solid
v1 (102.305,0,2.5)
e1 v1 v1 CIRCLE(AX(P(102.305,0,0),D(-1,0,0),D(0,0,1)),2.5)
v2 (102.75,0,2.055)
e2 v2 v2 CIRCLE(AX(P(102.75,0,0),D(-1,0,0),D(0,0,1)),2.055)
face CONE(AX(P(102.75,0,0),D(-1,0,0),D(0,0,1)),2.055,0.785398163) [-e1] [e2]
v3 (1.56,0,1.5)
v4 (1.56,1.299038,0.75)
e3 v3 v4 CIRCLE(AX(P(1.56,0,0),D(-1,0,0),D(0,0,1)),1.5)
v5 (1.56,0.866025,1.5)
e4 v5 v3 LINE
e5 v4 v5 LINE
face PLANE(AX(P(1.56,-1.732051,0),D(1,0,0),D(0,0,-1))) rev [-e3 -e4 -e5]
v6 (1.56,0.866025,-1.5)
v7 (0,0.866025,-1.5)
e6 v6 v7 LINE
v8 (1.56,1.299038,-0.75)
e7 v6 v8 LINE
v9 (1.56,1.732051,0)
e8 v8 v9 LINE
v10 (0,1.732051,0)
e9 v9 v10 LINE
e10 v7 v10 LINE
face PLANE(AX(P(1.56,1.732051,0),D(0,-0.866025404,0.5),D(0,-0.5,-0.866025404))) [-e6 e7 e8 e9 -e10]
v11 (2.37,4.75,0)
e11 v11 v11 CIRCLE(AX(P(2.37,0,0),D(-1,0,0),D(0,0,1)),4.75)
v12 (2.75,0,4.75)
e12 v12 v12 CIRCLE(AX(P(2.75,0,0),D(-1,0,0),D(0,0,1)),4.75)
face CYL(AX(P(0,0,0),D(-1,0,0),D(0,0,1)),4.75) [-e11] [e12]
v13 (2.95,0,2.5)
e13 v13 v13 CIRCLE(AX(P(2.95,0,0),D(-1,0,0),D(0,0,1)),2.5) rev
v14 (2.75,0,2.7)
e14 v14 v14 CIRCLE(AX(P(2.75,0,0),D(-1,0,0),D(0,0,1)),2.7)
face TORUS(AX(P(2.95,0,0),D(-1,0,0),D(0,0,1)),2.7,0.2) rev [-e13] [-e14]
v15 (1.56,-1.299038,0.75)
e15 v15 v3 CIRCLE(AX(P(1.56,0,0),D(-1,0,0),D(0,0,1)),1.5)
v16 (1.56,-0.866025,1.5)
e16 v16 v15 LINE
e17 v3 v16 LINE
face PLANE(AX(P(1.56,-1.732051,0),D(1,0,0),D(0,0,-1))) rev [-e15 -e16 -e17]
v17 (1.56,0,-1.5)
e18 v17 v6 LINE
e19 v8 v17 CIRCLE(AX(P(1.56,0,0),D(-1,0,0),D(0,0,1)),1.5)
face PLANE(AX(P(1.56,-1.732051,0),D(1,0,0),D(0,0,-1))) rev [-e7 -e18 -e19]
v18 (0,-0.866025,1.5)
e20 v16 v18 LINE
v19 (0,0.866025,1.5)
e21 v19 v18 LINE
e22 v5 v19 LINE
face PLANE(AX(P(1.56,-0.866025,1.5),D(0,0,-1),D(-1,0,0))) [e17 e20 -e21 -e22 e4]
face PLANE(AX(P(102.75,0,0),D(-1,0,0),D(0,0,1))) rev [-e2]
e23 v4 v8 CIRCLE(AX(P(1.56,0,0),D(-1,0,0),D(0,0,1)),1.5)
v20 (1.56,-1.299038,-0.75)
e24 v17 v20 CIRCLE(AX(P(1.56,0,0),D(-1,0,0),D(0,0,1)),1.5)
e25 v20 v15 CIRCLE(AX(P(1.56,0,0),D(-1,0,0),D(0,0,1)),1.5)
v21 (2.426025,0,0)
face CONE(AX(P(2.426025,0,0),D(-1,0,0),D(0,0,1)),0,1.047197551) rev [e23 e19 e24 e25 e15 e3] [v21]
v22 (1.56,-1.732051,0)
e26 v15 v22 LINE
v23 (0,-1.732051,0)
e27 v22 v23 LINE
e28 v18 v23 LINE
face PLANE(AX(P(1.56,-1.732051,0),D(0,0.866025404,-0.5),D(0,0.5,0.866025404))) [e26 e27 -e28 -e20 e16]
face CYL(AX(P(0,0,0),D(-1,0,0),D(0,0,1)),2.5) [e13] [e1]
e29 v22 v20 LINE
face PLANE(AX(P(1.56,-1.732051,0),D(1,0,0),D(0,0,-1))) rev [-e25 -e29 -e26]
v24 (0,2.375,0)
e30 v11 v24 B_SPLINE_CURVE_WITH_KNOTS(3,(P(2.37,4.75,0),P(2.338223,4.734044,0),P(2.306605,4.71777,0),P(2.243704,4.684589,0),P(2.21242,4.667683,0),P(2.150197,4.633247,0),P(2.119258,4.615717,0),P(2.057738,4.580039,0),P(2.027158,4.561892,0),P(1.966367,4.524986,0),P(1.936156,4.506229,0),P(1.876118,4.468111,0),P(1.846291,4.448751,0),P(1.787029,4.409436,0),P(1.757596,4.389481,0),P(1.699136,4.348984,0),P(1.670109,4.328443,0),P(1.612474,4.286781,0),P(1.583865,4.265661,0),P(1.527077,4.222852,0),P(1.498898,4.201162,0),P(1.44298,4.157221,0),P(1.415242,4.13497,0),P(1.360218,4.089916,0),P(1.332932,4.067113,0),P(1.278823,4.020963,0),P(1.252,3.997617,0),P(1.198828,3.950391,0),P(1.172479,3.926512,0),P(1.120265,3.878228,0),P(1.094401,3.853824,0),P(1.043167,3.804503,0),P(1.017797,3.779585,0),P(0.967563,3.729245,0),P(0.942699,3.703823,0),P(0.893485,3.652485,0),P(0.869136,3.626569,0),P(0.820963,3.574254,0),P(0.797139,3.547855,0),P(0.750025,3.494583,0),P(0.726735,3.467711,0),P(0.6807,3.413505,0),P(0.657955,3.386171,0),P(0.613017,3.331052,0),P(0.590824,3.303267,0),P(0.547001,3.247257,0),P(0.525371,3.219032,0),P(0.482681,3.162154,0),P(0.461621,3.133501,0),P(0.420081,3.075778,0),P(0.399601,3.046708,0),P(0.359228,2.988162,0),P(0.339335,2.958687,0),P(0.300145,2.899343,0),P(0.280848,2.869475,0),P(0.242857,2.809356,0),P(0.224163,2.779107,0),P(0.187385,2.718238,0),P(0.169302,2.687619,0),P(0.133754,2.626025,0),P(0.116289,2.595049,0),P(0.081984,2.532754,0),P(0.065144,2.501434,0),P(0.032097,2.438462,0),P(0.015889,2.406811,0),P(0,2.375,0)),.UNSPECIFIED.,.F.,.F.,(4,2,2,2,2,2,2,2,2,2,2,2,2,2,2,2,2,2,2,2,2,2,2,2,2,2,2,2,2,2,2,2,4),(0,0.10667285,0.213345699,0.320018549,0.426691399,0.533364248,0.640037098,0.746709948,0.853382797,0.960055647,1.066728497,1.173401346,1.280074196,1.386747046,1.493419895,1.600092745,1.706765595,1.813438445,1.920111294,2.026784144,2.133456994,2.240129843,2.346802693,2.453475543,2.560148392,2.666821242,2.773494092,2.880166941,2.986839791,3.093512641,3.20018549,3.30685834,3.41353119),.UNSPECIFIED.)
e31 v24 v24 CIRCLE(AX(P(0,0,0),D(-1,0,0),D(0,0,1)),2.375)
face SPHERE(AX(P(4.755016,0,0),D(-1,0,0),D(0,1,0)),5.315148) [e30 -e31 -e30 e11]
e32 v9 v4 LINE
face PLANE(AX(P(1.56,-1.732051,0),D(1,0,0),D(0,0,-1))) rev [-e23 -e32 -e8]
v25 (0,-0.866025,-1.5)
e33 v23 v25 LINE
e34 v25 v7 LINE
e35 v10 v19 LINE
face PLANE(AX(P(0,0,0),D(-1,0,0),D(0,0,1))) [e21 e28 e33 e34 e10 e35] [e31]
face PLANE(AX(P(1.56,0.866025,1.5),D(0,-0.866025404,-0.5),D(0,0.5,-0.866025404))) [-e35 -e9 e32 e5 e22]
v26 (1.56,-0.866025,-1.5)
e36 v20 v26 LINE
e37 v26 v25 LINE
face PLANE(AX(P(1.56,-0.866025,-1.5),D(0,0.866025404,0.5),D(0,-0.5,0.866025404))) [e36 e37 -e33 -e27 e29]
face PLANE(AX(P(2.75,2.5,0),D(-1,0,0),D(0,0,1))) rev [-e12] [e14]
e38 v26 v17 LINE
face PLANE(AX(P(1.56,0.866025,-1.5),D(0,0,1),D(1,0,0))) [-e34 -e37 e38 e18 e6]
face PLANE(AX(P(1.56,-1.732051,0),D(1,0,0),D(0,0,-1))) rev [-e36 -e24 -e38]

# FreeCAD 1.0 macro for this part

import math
import FreeCAD as App
import Part
import Sketcher
from FreeCAD import Vector
Q = App.Units.Quantity


def edges_at(feature, points):
    """Names of the edges that pass closest to the given points."""
    edges = feature.Shape.Edges
    near = lambda p: min(range(len(edges)), key=lambda i: edges[i].distToShape(Part.Vertex(*p))[0])
    return sorted({f"Edge{near(p) + 1}" for p in points})

doc = App.newDocument("Part")
body = doc.addObject("PartDesign::Body", "Body")

# Sketch on XY plane
sketch1 = body.newObject("Sketcher::SketchObject", "Sketch")
sketch1.AttachmentSupport = (doc.getObject("XY_Plane"), [""])
sketch1.MapMode = "FlatFace"
sketch1.addGeometry(Part.LineSegment(Vector(102.75, 0, 0), Vector(102.75, 2.06, 0)), False)
sketch1.addGeometry(Part.LineSegment(Vector(102.75, 2.06, 0), Vector(102.31, 2.5, 0)), False)
sketch1.addGeometry(Part.LineSegment(Vector(102.31, 2.5, 0), Vector(2.75, 2.5, 0)), False)
sketch1.addGeometry(Part.LineSegment(Vector(2.75, 2.5, 0), Vector(2.75, 4.75, 0)), False)
sketch1.addGeometry(Part.LineSegment(Vector(2.75, 4.75, 0), Vector(2.37, 4.75, 0)), False)
sketch1.addGeometry(Part.ArcOfCircle(Part.Circle(Vector(4.76, 0, 0), Vector(0, 0, 1), 5.32), math.radians(117), math.radians(153)), False)
sketch1.addGeometry(Part.LineSegment(Vector(0, 2.38, 0), Vector(0, 0, 0)), False)
sketch1.addGeometry(Part.LineSegment(Vector(0, 0, 0), Vector(102.75, 0, 0)), False)
sketch1.addConstraint(Sketcher.Constraint("Coincident", 0, 2, 1, 1))
sketch1.addConstraint(Sketcher.Constraint("Coincident", 1, 2, 2, 1))
sketch1.addConstraint(Sketcher.Constraint("Coincident", 2, 2, 3, 1))
sketch1.addConstraint(Sketcher.Constraint("Coincident", 3, 2, 4, 1))
sketch1.addConstraint(Sketcher.Constraint("Coincident", 4, 2, 5, 1))
sketch1.addConstraint(Sketcher.Constraint("Coincident", 5, 2, 6, 1))
sketch1.addConstraint(Sketcher.Constraint("Coincident", 6, 2, 7, 1))
sketch1.addConstraint(Sketcher.Constraint("Coincident", 7, 2, 0, 1))
sketch1.addConstraint(Sketcher.Constraint("Vertical", 0))
sketch1.addConstraint(Sketcher.Constraint("Horizontal", 2))
sketch1.addConstraint(Sketcher.Constraint("Vertical", 3))
sketch1.addConstraint(Sketcher.Constraint("Horizontal", 4))
sketch1.addConstraint(Sketcher.Constraint("Vertical", 6))
sketch1.addConstraint(Sketcher.Constraint("Horizontal", 7))
sketch1.addConstraint(Sketcher.Constraint("Coincident", 6, 2, -1, 1))
sketch1.addConstraint(Sketcher.Constraint("PointOnObject", 5, 3, -1))
sketch1.addConstraint(Sketcher.Constraint("Angle", 1, Q("135 deg")))
sketch1.addConstraint(Sketcher.Constraint("DistanceX", 2, 2, 0, 2, 100.0))
sketch1.addConstraint(Sketcher.Constraint("DistanceX", 4, 2, 4, 1, 0.38))
sketch1.addConstraint(Sketcher.Constraint("DistanceX", 7, 1, 7, 2, 102.75))
sketch1.addConstraint(Sketcher.Constraint("DistanceY", 3, 1, 3, 2, 2.25))
sketch1.addConstraint(Sketcher.Constraint("DistanceY", -1, 1, 1, 2, 2.5))
sketch1.addConstraint(Sketcher.Constraint("DistanceX", 2, 2, 2, 1, 99.555))
sketch1.addConstraint(Sketcher.Constraint("DistanceY", 6, 2, 6, 1, 2.375))
revolution = body.newObject("PartDesign::Revolution", "Revolution")
revolution.Profile = sketch1
revolution.ReferenceAxis = (sketch1, ["H_Axis"])
revolution.Angle = 360
doc.recompute()

fillet = body.newObject("PartDesign::Fillet", "Fillet")
fillet.Base = (revolution, edges_at(revolution, [(2.75, 0, -2.5)]))
fillet.Radius = 0.2

# Sketch on XY plane
sketch2 = body.newObject("Sketcher::SketchObject", "Sketch001")
sketch2.AttachmentSupport = (doc.getObject("XY_Plane"), [""])
sketch2.MapMode = "FlatFace"
sketch2.addGeometry(Part.LineSegment(Vector(1.6, 1.5, 0), Vector(0, 1.5, 0)), False)
sketch2.addGeometry(Part.LineSegment(Vector(0, 1.5, 0), Vector(0, 0, 0)), False)
sketch2.addGeometry(Part.LineSegment(Vector(0, 0, 0), Vector(2.4, 0, 0)), False)
sketch2.addGeometry(Part.LineSegment(Vector(2.4, 0, 0), Vector(1.6, 1.5, 0)), False)
sketch2.addConstraint(Sketcher.Constraint("Coincident", 0, 2, 1, 1))
sketch2.addConstraint(Sketcher.Constraint("Coincident", 1, 2, 2, 1))
sketch2.addConstraint(Sketcher.Constraint("Coincident", 2, 2, 3, 1))
sketch2.addConstraint(Sketcher.Constraint("Coincident", 3, 2, 0, 1))
sketch2.addConstraint(Sketcher.Constraint("Horizontal", 0))
sketch2.addConstraint(Sketcher.Constraint("Vertical", 1))
sketch2.addConstraint(Sketcher.Constraint("Horizontal", 2))
sketch2.addConstraint(Sketcher.Constraint("Coincident", 1, 2, -1, 1))
sketch2.addConstraint(Sketcher.Constraint("Angle", 3, Q("120 deg")))
sketch2.addConstraint(Sketcher.Constraint("DistanceY", 1, 2, 1, 1, 1.5))
sketch2.addConstraint(Sketcher.Constraint("DistanceX", 0, 2, 0, 1, 1.56))
groove = body.newObject("PartDesign::Groove", "Groove")
groove.Profile = sketch2
groove.ReferenceAxis = (sketch2, ["H_Axis"])
groove.Angle = 360

# Sketch on YZ plane
sketch3 = body.newObject("Sketcher::SketchObject", "Sketch002")
sketch3.AttachmentSupport = (doc.getObject("YZ_Plane"), [""])
sketch3.MapMode = "FlatFace"
sketch3.addGeometry(Part.LineSegment(Vector(0.9, 1.5, 0), Vector(-0.9, 1.5, 0)), False)
sketch3.addGeometry(Part.LineSegment(Vector(-0.9, 1.5, 0), Vector(-1.7, 0, 0)), False)
sketch3.addGeometry(Part.LineSegment(Vector(-1.7, 0, 0), Vector(-0.9, -1.5, 0)), False)
sketch3.addGeometry(Part.LineSegment(Vector(-0.9, -1.5, 0), Vector(0.9, -1.5, 0)), False)
sketch3.addGeometry(Part.LineSegment(Vector(0.9, -1.5, 0), Vector(1.7, 0, 0)), False)
sketch3.addGeometry(Part.LineSegment(Vector(1.7, 0, 0), Vector(0.9, 1.5, 0)), False)
sketch3.addConstraint(Sketcher.Constraint("Coincident", 0, 2, 1, 1))
sketch3.addConstraint(Sketcher.Constraint("Coincident", 1, 2, 2, 1))
sketch3.addConstraint(Sketcher.Constraint("Coincident", 2, 2, 3, 1))
sketch3.addConstraint(Sketcher.Constraint("Coincident", 3, 2, 4, 1))
sketch3.addConstraint(Sketcher.Constraint("Coincident", 4, 2, 5, 1))
sketch3.addConstraint(Sketcher.Constraint("Coincident", 5, 2, 0, 1))
sketch3.addConstraint(Sketcher.Constraint("Horizontal", 0))
sketch3.addConstraint(Sketcher.Constraint("Horizontal", 3))
sketch3.addConstraint(Sketcher.Constraint("Symmetric", 0, 2, 3, 2, -1, 1))
sketch3.addConstraint(Sketcher.Constraint("Symmetric", 1, 2, 4, 2, -1, 1))
sketch3.addConstraint(Sketcher.Constraint("PointOnObject", 1, 2, -1))
sketch3.addConstraint(Sketcher.Constraint("Parallel", 2, 5))
sketch3.addConstraint(Sketcher.Constraint("Vertical", 0, 2, 2, 2))
sketch3.addConstraint(Sketcher.Constraint("Angle", 1, Q("-120 deg")))
sketch3.addConstraint(Sketcher.Constraint("DistanceY", 2, 2, 0, 2, 3.0))
sketch3.addConstraint(Sketcher.Constraint("DistanceX", 0, 2, 0, 1, 1.732051))
pocket1 = body.newObject("PartDesign::Pocket", "Pocket")
pocket1.Profile = sketch3
pocket1.Length = 1.56
pocket1.Reversed = True

doc.recompute()
